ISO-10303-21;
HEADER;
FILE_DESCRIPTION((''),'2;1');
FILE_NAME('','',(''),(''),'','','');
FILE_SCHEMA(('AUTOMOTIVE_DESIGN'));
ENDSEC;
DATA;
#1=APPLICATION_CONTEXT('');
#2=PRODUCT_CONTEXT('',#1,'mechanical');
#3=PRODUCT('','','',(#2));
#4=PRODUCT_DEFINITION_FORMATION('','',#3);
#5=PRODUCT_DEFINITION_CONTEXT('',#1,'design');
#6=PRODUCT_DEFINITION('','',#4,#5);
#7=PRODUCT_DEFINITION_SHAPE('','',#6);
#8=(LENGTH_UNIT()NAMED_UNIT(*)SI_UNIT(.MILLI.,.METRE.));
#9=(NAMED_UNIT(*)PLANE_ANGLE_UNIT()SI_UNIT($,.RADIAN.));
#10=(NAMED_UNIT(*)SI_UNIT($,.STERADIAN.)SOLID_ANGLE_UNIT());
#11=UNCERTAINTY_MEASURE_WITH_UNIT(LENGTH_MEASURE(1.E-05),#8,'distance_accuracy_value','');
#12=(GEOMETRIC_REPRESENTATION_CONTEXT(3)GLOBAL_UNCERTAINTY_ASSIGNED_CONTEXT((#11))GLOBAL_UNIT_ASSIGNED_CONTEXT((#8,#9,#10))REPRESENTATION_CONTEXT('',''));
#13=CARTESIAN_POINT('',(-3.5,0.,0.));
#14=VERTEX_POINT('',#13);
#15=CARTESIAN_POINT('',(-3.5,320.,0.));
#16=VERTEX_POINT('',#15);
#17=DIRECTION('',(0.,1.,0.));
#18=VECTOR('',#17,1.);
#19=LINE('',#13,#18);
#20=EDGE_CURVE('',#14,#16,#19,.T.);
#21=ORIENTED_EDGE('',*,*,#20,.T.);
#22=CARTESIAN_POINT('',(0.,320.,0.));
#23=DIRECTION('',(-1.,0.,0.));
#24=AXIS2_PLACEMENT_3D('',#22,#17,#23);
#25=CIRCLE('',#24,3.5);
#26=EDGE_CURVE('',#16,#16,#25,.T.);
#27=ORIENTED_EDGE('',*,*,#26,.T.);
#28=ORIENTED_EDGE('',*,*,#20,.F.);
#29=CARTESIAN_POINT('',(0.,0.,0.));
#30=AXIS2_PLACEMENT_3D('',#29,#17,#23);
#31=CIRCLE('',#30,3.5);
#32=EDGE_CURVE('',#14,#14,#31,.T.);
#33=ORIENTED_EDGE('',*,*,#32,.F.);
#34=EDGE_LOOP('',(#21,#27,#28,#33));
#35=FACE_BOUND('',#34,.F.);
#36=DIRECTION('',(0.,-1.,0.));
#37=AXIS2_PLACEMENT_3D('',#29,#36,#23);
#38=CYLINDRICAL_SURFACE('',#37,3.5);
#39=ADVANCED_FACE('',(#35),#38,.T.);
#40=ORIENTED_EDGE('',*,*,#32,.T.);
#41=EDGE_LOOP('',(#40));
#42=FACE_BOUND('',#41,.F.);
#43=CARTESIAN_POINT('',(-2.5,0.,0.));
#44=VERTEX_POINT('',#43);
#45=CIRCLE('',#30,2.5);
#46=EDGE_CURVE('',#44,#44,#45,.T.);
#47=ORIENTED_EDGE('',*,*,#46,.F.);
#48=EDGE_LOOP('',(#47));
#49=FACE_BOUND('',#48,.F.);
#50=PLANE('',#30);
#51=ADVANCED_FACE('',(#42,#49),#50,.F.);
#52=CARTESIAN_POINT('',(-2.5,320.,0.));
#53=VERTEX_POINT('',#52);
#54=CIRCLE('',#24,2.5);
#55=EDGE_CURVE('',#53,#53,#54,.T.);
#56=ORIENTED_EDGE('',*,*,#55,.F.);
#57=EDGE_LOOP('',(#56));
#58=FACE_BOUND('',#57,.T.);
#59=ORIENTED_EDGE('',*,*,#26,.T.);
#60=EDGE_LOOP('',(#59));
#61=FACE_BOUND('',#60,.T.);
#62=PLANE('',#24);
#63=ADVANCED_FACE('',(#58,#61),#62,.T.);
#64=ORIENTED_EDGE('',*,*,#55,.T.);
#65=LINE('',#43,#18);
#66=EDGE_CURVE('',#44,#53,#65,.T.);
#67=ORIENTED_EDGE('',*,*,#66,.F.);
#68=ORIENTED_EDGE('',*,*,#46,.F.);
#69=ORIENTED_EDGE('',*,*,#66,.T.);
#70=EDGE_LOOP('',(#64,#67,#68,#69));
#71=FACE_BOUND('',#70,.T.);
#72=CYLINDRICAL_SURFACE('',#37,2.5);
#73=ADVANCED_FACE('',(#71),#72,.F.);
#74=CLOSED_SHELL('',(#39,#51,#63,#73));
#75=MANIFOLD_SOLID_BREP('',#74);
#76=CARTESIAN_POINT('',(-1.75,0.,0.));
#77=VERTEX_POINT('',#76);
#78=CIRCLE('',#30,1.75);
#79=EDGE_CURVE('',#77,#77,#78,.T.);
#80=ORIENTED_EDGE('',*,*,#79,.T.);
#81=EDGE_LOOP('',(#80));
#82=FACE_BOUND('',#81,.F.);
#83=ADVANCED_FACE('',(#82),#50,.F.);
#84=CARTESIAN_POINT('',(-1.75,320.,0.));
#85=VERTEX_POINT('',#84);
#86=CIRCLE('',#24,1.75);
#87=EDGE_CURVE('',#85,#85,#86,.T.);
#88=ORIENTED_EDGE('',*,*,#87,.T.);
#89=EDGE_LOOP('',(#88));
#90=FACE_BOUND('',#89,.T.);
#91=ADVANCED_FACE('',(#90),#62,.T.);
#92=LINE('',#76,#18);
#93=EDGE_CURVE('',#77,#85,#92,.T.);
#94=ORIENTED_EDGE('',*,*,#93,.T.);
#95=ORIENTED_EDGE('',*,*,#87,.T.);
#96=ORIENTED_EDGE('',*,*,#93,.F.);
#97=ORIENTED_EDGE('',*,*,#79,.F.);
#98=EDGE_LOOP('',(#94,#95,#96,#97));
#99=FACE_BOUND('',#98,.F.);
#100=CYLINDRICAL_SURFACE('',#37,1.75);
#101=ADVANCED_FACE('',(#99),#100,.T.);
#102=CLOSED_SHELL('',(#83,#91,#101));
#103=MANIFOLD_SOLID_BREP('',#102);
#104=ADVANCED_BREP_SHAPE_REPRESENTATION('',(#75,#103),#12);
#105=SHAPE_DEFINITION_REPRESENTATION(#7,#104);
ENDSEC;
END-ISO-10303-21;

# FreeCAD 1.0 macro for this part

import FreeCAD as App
import Part
import Sketcher

doc = App.newDocument("Part")
body = doc.addObject("PartDesign::Body", "Body")
body.AllowCompound = True

sketch1 = body.newObject("Sketcher::SketchObject", "Sketch")
sketch1.AttachmentSupport = (doc.getObject("XZ_Plane"), [""])
sketch1.MapMode = "FlatFace"
sketch1.addGeometry(Part.Circle(App.Vector(0, 0, 0), App.Vector(0, 0, 1), 1.8), False)
sketch1.addConstraint(Sketcher.Constraint("Coincident", 0, 3, -1, 1))
sketch1.addConstraint(Sketcher.Constraint("Diameter", 0, 3.5))
pad1 = body.newObject("PartDesign::Pad", "Pad")
pad1.Profile = sketch1
pad1.Length = 320
pad1.Reversed = True

sketch2 = body.newObject("Sketcher::SketchObject", "Sketch001")
sketch2.AttachmentSupport = (doc.getObject("XZ_Plane"), [""])
sketch2.MapMode = "FlatFace"
sketch2.addGeometry(Part.Circle(App.Vector(0, 0, 0), App.Vector(0, 0, 1), 3.5), False)
sketch2.addGeometry(Part.Circle(App.Vector(0, 0, 0), App.Vector(0, 0, 1), 2.5), False)
sketch2.addConstraint(Sketcher.Constraint("Coincident", 0, 3, -1, 1))
sketch2.addConstraint(Sketcher.Constraint("Coincident", 1, 3, -1, 1))
sketch2.addConstraint(Sketcher.Constraint("Diameter", 0, 7.0))
sketch2.addConstraint(Sketcher.Constraint("Diameter", 1, 5.0))
pad2 = body.newObject("PartDesign::Pad", "Pad001")
pad2.Profile = sketch2
pad2.Length = 320
pad2.Reversed = True

doc.recompute()
